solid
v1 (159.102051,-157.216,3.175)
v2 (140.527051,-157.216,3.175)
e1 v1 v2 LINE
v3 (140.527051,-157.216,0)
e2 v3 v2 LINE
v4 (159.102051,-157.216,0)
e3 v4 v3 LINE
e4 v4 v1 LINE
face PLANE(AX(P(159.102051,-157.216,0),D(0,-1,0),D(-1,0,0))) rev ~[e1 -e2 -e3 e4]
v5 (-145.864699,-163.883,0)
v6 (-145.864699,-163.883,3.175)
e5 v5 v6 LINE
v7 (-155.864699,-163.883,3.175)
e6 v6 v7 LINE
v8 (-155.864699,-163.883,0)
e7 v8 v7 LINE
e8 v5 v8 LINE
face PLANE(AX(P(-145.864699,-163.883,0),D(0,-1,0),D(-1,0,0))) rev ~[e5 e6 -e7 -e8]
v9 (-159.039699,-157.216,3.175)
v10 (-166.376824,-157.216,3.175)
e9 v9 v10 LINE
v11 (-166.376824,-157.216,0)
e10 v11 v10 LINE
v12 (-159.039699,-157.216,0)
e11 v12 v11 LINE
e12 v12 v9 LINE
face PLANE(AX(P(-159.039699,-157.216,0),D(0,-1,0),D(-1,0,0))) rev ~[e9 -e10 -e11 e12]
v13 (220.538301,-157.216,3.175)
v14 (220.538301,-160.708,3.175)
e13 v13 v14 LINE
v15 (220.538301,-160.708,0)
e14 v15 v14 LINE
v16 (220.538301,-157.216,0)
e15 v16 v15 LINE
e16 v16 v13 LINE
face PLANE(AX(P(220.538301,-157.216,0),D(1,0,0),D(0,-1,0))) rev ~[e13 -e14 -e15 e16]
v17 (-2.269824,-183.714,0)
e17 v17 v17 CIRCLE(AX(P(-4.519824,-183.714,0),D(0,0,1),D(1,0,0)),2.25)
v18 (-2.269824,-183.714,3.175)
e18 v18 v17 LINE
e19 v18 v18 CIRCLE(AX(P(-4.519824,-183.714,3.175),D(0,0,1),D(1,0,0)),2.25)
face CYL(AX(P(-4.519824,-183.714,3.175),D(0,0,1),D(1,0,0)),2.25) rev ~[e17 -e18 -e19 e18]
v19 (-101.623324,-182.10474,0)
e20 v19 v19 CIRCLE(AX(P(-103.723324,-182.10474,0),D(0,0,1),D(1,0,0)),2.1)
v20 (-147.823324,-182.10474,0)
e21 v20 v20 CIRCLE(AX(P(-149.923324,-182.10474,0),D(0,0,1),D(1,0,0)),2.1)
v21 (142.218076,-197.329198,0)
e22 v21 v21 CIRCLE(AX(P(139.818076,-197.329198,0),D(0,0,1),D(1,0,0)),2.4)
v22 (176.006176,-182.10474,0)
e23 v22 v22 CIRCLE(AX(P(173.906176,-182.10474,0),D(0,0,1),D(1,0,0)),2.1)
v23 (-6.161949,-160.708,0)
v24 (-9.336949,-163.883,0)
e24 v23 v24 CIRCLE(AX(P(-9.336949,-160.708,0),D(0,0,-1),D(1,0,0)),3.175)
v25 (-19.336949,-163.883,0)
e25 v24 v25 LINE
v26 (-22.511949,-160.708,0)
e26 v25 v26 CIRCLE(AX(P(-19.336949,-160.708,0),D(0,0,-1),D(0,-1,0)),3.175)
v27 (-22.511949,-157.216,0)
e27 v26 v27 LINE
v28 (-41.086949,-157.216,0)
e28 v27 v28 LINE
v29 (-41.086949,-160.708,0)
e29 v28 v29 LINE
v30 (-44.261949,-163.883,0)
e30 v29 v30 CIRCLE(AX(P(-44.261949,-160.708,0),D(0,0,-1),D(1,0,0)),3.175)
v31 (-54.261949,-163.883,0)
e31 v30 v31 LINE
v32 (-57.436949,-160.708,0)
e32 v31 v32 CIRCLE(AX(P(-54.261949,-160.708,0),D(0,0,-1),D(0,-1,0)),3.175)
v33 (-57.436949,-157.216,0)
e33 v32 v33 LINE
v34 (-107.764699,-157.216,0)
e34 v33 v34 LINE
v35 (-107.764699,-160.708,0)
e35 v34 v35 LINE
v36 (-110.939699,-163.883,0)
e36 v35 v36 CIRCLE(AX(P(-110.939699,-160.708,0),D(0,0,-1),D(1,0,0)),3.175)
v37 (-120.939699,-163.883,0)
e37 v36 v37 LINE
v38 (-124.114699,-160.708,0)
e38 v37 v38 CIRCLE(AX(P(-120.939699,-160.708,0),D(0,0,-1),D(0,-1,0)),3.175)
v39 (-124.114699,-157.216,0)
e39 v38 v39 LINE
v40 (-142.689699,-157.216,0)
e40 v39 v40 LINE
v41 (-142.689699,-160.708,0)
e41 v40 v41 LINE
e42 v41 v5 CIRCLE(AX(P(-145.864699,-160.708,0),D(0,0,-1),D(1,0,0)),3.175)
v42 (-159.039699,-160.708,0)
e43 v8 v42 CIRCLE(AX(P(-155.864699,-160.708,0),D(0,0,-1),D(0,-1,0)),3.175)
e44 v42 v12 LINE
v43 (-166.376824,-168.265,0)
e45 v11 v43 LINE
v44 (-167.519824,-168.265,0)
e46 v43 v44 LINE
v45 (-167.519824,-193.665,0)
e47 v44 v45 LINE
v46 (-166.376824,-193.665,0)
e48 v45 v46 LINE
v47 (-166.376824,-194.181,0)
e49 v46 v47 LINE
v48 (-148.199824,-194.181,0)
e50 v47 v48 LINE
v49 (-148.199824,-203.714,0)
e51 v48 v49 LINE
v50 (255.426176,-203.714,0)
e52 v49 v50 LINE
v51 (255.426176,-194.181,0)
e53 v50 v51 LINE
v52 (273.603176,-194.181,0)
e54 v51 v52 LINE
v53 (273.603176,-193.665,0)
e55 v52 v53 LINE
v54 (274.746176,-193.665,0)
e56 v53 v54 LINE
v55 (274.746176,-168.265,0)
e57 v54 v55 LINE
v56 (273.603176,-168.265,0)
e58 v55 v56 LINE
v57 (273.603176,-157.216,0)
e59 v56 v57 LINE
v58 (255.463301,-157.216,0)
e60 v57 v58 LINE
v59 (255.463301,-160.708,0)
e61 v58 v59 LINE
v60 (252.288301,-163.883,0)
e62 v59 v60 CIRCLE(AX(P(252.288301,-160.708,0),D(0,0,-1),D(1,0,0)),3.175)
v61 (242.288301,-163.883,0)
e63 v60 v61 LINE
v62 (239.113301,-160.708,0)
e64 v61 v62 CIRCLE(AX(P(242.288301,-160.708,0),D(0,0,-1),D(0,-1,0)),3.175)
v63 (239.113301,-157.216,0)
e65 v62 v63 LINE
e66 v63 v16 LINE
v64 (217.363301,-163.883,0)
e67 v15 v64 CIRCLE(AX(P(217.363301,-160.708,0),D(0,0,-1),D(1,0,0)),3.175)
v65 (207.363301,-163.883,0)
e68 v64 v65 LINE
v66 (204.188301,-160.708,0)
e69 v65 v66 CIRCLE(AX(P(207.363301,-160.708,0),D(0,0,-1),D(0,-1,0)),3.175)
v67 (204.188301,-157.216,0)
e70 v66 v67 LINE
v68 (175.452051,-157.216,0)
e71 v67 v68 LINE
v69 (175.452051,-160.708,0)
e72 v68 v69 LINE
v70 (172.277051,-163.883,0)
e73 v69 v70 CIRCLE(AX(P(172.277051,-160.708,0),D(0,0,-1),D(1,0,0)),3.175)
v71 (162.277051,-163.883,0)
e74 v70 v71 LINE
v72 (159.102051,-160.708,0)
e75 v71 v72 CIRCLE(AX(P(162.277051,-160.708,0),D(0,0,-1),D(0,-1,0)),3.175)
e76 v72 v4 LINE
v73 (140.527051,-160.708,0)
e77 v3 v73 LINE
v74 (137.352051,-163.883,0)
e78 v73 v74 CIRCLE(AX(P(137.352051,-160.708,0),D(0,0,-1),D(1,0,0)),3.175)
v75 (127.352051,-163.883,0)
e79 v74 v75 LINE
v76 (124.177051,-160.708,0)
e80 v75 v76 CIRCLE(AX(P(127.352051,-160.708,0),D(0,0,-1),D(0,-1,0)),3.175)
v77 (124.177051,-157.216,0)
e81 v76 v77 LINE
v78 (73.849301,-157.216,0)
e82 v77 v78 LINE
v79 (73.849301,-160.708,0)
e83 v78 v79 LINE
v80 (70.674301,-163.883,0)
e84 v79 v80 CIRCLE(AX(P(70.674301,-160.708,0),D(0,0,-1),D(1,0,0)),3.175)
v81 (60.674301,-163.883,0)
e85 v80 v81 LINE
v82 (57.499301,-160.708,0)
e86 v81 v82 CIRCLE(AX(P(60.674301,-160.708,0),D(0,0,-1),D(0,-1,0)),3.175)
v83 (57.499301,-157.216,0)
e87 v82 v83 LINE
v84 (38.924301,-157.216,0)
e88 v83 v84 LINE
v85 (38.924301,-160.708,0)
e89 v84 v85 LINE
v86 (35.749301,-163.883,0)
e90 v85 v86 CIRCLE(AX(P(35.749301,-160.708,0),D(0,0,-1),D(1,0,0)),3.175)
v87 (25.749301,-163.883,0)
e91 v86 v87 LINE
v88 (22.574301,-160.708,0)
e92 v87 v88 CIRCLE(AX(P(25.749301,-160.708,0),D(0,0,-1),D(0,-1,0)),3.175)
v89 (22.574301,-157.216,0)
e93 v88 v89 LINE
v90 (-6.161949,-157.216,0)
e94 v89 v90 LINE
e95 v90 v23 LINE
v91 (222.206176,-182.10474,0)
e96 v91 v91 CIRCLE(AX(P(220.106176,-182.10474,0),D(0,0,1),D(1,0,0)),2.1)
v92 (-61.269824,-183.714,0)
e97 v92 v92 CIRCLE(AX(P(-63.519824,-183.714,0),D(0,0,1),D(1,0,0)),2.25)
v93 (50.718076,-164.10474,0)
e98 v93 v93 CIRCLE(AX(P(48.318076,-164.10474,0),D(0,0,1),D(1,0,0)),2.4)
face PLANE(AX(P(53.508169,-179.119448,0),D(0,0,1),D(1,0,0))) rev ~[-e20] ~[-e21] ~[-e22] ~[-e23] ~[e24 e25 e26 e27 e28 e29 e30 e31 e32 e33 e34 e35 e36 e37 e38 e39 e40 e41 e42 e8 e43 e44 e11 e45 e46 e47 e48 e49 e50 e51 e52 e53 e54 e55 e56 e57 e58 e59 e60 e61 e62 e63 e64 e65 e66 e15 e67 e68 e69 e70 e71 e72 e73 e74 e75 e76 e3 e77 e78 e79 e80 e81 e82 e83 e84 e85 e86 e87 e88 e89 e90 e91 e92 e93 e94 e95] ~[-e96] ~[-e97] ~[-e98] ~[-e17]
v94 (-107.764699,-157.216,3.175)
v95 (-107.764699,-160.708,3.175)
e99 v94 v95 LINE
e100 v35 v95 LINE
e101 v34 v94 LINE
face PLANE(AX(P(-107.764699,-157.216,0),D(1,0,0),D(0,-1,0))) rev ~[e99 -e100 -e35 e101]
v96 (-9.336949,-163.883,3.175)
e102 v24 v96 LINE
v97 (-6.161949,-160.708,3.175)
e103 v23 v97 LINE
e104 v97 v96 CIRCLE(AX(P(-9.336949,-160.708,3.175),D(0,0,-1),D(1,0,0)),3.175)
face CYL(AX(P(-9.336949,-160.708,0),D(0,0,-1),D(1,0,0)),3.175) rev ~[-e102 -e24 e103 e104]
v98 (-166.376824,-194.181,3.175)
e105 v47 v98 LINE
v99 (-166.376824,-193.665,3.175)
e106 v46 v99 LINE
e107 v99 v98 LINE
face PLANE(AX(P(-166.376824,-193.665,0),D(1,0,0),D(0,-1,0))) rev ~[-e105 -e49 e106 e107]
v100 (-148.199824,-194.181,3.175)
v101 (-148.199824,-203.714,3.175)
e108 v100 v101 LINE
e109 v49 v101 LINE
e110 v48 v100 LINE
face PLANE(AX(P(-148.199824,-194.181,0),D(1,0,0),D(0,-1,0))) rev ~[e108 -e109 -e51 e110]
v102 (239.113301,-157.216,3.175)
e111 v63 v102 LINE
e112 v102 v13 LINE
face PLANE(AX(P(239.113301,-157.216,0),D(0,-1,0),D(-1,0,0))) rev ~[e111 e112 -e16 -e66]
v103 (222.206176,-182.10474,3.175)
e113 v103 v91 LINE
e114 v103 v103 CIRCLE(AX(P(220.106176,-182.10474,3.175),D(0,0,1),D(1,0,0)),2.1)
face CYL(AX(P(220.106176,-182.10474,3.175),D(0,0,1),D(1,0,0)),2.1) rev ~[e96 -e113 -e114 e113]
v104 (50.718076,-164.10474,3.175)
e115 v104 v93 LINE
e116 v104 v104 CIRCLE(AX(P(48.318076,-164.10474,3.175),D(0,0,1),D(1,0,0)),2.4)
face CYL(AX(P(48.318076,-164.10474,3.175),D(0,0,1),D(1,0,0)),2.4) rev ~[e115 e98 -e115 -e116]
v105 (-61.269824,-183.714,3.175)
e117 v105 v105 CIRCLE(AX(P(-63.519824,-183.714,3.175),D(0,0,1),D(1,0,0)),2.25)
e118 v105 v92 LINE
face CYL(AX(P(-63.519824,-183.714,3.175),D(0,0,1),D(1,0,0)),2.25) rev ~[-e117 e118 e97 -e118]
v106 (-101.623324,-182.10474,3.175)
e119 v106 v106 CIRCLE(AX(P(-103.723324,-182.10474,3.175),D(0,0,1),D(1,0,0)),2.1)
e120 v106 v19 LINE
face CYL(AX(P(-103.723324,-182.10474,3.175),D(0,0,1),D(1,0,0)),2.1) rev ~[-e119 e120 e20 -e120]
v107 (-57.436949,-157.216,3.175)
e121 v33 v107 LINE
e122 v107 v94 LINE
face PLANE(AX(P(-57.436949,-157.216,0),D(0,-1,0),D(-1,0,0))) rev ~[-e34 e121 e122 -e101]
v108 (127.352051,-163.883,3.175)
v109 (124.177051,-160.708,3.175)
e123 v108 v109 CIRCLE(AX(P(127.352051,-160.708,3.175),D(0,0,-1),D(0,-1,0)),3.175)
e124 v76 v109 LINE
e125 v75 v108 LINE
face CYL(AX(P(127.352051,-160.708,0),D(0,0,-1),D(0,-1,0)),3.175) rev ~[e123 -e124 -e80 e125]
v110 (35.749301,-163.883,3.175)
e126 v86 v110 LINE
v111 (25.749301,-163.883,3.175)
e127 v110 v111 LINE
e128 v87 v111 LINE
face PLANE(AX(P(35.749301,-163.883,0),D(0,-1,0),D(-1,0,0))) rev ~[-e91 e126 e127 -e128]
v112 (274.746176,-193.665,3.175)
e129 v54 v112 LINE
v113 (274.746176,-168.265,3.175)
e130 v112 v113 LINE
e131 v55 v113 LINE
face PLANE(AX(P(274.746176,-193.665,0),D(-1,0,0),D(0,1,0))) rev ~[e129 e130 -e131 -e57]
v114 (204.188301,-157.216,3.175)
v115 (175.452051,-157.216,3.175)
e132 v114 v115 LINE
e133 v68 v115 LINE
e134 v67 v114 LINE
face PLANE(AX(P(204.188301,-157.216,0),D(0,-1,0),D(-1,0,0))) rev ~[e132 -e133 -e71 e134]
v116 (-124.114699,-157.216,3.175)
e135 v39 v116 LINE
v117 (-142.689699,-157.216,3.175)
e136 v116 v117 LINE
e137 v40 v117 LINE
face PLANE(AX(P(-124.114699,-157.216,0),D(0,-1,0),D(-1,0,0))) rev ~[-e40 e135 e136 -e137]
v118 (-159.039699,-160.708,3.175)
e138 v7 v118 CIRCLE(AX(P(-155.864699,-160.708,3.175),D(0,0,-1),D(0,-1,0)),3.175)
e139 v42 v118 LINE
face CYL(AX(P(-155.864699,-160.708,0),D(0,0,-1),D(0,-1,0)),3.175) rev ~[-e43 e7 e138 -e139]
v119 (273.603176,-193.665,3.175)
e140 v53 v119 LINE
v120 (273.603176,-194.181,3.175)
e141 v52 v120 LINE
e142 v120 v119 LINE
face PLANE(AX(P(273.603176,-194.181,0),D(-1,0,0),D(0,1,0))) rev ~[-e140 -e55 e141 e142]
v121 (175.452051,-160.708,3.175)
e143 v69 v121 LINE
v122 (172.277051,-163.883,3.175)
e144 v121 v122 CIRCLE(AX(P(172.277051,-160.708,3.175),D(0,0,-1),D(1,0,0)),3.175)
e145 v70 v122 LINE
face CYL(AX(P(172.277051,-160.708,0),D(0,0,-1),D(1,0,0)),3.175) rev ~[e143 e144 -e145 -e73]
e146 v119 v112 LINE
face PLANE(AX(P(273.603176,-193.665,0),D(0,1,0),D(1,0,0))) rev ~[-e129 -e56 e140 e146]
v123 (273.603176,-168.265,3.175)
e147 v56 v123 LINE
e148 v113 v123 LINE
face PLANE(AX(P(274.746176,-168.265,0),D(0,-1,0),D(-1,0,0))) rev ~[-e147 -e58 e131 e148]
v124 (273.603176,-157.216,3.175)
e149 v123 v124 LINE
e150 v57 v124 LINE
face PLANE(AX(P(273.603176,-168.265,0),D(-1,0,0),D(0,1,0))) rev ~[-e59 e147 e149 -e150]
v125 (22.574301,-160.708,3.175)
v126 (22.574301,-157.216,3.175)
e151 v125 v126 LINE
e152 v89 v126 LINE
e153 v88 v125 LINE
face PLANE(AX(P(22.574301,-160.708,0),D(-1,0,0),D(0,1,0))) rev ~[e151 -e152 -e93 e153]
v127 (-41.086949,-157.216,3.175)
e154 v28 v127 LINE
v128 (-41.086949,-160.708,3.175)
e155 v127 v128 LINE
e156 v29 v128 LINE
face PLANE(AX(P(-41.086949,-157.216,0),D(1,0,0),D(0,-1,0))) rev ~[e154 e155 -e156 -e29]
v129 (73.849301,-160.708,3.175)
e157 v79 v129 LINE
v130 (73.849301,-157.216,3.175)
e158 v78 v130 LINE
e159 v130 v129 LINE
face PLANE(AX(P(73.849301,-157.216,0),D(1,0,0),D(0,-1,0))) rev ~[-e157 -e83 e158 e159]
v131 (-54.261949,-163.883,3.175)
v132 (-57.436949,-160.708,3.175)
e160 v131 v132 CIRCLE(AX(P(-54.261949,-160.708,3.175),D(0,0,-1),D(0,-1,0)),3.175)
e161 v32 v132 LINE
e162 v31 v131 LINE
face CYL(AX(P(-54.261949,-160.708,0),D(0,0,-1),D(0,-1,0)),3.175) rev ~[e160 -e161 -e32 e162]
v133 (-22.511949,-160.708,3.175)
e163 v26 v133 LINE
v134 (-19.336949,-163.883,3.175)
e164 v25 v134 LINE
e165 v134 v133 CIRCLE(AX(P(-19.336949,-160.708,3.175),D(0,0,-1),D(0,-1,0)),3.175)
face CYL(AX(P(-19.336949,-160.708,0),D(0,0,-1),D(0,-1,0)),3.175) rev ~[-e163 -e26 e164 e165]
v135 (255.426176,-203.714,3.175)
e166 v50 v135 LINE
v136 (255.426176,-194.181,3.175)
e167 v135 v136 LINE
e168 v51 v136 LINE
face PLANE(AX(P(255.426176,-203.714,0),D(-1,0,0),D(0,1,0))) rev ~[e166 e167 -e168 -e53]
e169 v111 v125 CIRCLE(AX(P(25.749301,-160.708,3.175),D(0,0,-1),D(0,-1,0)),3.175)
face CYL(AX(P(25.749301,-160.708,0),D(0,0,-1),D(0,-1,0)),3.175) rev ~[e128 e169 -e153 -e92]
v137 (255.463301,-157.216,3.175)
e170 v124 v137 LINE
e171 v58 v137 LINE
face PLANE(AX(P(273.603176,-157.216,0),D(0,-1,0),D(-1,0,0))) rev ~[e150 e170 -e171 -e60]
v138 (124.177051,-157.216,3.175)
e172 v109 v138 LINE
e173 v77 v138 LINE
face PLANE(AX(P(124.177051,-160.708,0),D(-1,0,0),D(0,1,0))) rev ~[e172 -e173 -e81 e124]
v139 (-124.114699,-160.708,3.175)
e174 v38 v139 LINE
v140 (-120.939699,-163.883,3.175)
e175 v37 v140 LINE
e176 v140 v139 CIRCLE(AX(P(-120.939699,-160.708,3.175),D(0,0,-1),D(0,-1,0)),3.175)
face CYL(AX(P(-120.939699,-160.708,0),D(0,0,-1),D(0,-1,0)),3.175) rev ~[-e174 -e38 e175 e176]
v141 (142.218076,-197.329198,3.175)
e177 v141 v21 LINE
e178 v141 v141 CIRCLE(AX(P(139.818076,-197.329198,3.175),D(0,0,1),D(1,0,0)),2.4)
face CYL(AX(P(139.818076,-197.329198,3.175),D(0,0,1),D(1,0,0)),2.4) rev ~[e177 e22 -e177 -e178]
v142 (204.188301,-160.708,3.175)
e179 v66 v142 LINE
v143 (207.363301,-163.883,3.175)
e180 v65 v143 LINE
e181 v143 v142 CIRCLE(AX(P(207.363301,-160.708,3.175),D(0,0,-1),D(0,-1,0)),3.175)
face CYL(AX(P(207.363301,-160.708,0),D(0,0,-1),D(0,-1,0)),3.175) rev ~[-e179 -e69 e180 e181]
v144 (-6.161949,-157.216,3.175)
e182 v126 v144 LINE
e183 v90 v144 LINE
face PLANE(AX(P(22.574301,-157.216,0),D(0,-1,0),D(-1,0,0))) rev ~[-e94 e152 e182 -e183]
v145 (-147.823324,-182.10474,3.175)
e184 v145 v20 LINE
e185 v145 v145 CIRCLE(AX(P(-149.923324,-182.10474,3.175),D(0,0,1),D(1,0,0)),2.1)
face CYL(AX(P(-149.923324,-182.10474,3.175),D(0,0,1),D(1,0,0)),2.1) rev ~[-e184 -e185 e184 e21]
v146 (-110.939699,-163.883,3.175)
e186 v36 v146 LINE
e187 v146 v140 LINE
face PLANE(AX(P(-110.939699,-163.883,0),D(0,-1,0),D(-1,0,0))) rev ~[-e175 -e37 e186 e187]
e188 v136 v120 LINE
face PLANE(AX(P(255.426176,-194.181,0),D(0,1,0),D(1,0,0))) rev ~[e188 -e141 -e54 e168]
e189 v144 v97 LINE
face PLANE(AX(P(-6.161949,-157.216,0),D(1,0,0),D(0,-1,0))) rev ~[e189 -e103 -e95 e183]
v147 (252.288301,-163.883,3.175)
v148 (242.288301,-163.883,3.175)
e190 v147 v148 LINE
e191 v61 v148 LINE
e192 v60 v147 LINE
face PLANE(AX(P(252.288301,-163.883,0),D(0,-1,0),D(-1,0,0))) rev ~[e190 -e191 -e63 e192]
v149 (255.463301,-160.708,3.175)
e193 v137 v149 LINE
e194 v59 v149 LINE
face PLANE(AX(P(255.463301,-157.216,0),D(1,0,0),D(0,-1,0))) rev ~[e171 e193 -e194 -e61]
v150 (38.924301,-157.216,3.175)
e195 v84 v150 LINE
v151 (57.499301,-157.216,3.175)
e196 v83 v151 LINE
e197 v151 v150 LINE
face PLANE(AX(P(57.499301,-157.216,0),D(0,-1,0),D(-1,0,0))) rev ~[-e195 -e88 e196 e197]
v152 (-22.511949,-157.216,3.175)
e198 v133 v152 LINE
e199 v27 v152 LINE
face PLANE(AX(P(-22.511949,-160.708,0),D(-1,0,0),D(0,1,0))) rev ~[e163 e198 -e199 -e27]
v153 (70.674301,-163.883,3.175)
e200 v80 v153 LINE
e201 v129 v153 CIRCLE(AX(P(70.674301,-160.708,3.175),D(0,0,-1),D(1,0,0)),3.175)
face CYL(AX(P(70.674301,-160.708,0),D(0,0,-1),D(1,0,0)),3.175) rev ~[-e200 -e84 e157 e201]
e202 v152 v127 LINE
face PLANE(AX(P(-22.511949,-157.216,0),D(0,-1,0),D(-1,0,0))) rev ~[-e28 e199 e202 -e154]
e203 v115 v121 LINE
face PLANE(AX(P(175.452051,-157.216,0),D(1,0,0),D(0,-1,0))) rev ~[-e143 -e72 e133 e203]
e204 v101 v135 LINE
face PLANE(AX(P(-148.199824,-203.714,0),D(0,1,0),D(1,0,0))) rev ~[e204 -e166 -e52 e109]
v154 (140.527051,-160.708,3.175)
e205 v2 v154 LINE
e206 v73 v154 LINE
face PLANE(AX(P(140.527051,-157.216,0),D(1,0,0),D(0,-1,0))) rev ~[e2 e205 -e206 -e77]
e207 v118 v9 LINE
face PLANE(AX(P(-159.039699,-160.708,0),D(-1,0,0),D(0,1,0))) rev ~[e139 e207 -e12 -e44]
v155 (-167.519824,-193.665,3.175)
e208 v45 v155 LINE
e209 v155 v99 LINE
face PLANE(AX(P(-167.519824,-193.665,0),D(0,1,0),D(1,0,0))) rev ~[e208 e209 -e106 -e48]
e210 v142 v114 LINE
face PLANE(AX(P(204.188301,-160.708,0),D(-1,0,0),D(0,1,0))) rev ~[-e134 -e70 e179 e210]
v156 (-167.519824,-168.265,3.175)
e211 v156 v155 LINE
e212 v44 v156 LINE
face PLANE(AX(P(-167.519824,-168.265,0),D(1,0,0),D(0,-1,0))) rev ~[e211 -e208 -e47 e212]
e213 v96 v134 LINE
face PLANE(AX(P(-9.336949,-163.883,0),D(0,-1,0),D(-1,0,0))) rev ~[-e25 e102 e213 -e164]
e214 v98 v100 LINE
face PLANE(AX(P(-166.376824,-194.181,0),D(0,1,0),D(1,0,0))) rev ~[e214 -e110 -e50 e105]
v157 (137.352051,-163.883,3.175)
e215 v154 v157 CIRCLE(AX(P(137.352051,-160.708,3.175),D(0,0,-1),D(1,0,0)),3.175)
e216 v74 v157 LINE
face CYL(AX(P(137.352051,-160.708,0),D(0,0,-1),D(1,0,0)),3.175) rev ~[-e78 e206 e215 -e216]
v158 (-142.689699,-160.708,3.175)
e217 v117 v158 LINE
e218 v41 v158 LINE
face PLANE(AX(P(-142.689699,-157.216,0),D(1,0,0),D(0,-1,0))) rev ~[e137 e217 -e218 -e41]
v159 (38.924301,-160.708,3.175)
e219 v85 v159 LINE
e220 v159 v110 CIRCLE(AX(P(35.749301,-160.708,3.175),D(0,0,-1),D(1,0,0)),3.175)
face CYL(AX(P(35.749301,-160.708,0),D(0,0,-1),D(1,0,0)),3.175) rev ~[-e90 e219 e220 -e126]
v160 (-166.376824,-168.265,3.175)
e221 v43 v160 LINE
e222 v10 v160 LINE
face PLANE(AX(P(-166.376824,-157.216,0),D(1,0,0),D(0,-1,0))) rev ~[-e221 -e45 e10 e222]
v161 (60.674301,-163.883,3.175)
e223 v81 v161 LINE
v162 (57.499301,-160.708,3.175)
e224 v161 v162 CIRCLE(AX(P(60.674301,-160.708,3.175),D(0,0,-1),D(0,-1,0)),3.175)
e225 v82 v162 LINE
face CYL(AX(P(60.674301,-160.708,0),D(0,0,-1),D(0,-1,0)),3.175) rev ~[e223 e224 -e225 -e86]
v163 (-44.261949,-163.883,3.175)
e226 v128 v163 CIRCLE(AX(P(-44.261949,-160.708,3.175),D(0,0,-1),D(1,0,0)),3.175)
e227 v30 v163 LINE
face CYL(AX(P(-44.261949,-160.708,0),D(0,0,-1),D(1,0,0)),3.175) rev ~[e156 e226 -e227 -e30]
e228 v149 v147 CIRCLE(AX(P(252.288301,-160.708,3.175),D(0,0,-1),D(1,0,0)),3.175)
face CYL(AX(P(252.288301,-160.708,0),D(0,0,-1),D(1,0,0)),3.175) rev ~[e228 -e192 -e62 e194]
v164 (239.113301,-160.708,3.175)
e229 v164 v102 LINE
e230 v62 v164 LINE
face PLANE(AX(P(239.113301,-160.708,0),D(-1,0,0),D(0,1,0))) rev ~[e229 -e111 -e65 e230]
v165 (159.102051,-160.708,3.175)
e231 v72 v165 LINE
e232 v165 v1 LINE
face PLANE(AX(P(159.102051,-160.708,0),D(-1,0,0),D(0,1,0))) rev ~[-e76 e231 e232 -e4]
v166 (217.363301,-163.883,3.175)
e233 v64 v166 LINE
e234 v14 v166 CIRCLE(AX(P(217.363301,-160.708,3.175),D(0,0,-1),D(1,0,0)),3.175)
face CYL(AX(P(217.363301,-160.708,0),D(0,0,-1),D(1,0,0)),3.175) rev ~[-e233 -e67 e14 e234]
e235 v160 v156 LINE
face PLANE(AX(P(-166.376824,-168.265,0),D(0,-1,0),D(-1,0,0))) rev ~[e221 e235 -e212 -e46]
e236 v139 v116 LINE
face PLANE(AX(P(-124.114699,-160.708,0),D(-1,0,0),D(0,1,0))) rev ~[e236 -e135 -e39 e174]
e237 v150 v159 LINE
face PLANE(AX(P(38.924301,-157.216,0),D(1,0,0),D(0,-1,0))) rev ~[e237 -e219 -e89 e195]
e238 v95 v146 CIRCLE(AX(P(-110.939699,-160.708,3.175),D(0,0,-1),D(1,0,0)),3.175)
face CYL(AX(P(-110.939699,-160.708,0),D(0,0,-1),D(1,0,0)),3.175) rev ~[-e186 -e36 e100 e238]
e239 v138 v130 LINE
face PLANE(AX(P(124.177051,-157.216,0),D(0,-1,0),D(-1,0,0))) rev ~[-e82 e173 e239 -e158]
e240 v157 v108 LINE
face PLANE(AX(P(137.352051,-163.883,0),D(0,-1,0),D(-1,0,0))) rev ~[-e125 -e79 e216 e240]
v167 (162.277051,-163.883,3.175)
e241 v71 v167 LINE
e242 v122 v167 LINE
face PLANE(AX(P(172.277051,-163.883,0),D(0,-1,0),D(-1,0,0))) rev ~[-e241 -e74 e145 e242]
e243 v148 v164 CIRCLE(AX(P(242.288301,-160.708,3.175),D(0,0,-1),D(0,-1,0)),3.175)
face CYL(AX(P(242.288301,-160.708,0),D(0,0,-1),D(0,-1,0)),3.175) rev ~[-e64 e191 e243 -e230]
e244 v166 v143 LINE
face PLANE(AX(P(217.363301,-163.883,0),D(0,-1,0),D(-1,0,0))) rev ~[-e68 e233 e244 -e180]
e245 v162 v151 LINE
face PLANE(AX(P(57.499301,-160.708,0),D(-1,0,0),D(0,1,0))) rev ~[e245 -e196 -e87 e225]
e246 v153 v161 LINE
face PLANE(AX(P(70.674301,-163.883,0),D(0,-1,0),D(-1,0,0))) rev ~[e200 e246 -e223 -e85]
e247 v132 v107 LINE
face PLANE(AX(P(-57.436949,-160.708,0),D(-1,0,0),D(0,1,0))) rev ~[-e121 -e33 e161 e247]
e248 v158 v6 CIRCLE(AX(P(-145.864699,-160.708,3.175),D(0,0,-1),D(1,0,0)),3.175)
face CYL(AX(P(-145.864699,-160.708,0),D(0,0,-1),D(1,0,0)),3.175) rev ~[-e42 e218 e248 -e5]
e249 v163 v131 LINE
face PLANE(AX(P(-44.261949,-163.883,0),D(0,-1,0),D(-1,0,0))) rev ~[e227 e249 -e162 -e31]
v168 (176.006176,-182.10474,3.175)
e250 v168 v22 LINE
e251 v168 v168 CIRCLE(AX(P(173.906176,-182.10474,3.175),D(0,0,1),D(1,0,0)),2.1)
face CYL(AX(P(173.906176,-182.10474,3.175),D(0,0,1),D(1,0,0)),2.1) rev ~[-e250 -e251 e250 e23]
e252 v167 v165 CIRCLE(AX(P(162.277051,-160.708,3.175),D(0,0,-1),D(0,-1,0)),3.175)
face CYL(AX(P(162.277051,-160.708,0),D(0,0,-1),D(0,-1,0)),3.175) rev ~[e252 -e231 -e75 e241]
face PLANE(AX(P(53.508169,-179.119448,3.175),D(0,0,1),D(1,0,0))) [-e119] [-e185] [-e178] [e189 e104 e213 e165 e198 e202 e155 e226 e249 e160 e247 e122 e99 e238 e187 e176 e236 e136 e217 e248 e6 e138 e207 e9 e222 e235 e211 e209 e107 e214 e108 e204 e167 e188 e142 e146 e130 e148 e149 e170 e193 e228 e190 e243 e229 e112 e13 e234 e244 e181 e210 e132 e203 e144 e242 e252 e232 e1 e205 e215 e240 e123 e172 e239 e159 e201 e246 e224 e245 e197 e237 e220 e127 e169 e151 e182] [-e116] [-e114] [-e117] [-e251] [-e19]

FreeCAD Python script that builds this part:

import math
import FreeCAD as App
import Part
import Sketcher
Q = App.Units.Quantity

doc = App.newDocument("Part")
body = doc.addObject("PartDesign::Body", "Body")

# Sketch on XY plane
sketch1 = body.newObject("Sketcher::SketchObject", "Sketch")
sketch1.AttachmentSupport = (doc.getObject("XY_Plane"), [""])
sketch1.MapMode = "FlatFace"
sketch1.addGeometry([
    Part.LineSegment(App.Vector(-166.376824, -157.216, 0), App.Vector(-166.376824, -168.265, 0)),  # 0
    Part.LineSegment(App.Vector(-166.376824, -168.265, 0), App.Vector(-167.519824, -168.265, 0)),  # 1
    Part.LineSegment(App.Vector(-167.519824, -168.265, 0), App.Vector(-167.519824, -193.665, 0)),  # 2
    Part.LineSegment(App.Vector(-167.519824, -193.665, 0), App.Vector(-166.376824, -193.665, 0)),  # 3
    Part.LineSegment(App.Vector(-166.376824, -193.665, 0), App.Vector(-166.376824, -194.181, 0)),  # 4
    Part.LineSegment(App.Vector(-166.376824, -194.181, 0), App.Vector(-148.199824, -194.181, 0)),  # 5
    Part.LineSegment(App.Vector(-148.199824, -194.181, 0), App.Vector(-148.199824, -203.714, 0)),  # 6
    Part.LineSegment(App.Vector(-148.199824, -203.714, 0), App.Vector(255.426176, -203.714, 0)),  # 7
    Part.LineSegment(App.Vector(255.426176, -203.714, 0), App.Vector(255.426176, -194.181, 0)),  # 8
    Part.LineSegment(App.Vector(255.426176, -194.181, 0), App.Vector(273.603176, -194.181, 0)),  # 9
    Part.LineSegment(App.Vector(273.603176, -194.181, 0), App.Vector(273.603176, -193.665, 0)),  # 10
    Part.LineSegment(App.Vector(273.603176, -193.665, 0), App.Vector(274.746176, -193.665, 0)),  # 11
    Part.LineSegment(App.Vector(274.746176, -193.665, 0), App.Vector(274.746176, -168.265, 0)),  # 12
    Part.LineSegment(App.Vector(274.746176, -168.265, 0), App.Vector(273.603176, -168.265, 0)),  # 13
    Part.LineSegment(App.Vector(273.603176, -168.265, 0), App.Vector(273.603176, -157.216, 0)),  # 14
    Part.LineSegment(App.Vector(273.603176, -157.216, 0), App.Vector(255.463301, -157.216, 0)),  # 15
    Part.LineSegment(App.Vector(255.463301, -157.216, 0), App.Vector(255.463301, -160.708, 0)),  # 16
    Part.ArcOfCircle(Part.Circle(App.Vector(252.288301, -160.708, 0), App.Vector(0, 0, 1), 3.175), math.radians(-90), math.radians(0)),  # 17
    Part.LineSegment(App.Vector(252.288301, -163.883, 0), App.Vector(242.288301, -163.883, 0)),  # 18
    Part.ArcOfCircle(Part.Circle(App.Vector(242.288301, -160.708, 0), App.Vector(0, 0, 1), 3.175), math.radians(180), math.radians(270)),  # 19
    Part.LineSegment(App.Vector(239.113301, -160.708, 0), App.Vector(239.113301, -157.216, 0)),  # 20
    Part.LineSegment(App.Vector(239.113301, -157.216, 0), App.Vector(220.538301, -157.216, 0)),  # 21
    Part.LineSegment(App.Vector(220.538301, -157.216, 0), App.Vector(220.538301, -160.708, 0)),  # 22
    Part.ArcOfCircle(Part.Circle(App.Vector(217.363301, -160.708, 0), App.Vector(0, 0, 1), 3.175), math.radians(-90), math.radians(0)),  # 23
    Part.LineSegment(App.Vector(217.363301, -163.883, 0), App.Vector(207.363301, -163.883, 0)),  # 24
    Part.ArcOfCircle(Part.Circle(App.Vector(207.363301, -160.708, 0), App.Vector(0, 0, 1), 3.175), math.radians(180), math.radians(270)),  # 25
    Part.LineSegment(App.Vector(204.188301, -160.708, 0), App.Vector(204.188301, -157.216, 0)),  # 26
    Part.LineSegment(App.Vector(204.188301, -157.216, 0), App.Vector(175.452051, -157.216, 0)),  # 27
    Part.LineSegment(App.Vector(175.452051, -157.216, 0), App.Vector(175.452051, -160.708, 0)),  # 28
    Part.ArcOfCircle(Part.Circle(App.Vector(172.277051, -160.708, 0), App.Vector(0, 0, 1), 3.175), math.radians(-90), math.radians(0)),  # 29
    Part.LineSegment(App.Vector(172.277051, -163.883, 0), App.Vector(162.277051, -163.883, 0)),  # 30
    Part.ArcOfCircle(Part.Circle(App.Vector(162.277051, -160.708, 0), App.Vector(0, 0, 1), 3.175), math.radians(180), math.radians(270)),  # 31
    Part.LineSegment(App.Vector(159.102051, -160.708, 0), App.Vector(159.102051, -157.216, 0)),  # 32
    Part.LineSegment(App.Vector(159.102051, -157.216, 0), App.Vector(140.527051, -157.216, 0)),  # 33
    Part.LineSegment(App.Vector(140.527051, -157.216, 0), App.Vector(140.527051, -160.708, 0)),  # 34
    Part.ArcOfCircle(Part.Circle(App.Vector(137.352051, -160.708, 0), App.Vector(0, 0, 1), 3.175), math.radians(-90), math.radians(0)),  # 35
    Part.LineSegment(App.Vector(137.352051, -163.883, 0), App.Vector(127.352051, -163.883, 0)),  # 36
    Part.ArcOfCircle(Part.Circle(App.Vector(127.352051, -160.708, 0), App.Vector(0, 0, 1), 3.175), math.radians(180), math.radians(270)),  # 37
    Part.LineSegment(App.Vector(124.177051, -160.708, 0), App.Vector(124.177051, -157.216, 0)),  # 38
    Part.LineSegment(App.Vector(124.177051, -157.216, 0), App.Vector(73.849301, -157.216, 0)),  # 39
    Part.LineSegment(App.Vector(73.849301, -157.216, 0), App.Vector(73.849301, -160.708, 0)),  # 40
    Part.ArcOfCircle(Part.Circle(App.Vector(70.674301, -160.708, 0), App.Vector(0, 0, 1), 3.175), math.radians(-90), math.radians(0)),  # 41
    Part.LineSegment(App.Vector(70.674301, -163.883, 0), App.Vector(60.674301, -163.883, 0)),  # 42
    Part.ArcOfCircle(Part.Circle(App.Vector(60.674301, -160.708, 0), App.Vector(0, 0, 1), 3.175), math.radians(180), math.radians(270)),  # 43
    Part.LineSegment(App.Vector(57.499301, -160.708, 0), App.Vector(57.499301, -157.216, 0)),  # 44
    Part.LineSegment(App.Vector(57.499301, -157.216, 0), App.Vector(38.924301, -157.216, 0)),  # 45
    Part.LineSegment(App.Vector(38.924301, -157.216, 0), App.Vector(38.924301, -160.708, 0)),  # 46
    Part.ArcOfCircle(Part.Circle(App.Vector(35.749301, -160.708, 0), App.Vector(0, 0, 1), 3.175), math.radians(-90), math.radians(0)),  # 47
    Part.LineSegment(App.Vector(35.749301, -163.883, 0), App.Vector(25.749301, -163.883, 0)),  # 48
    Part.ArcOfCircle(Part.Circle(App.Vector(25.749301, -160.708, 0), App.Vector(0, 0, 1), 3.175), math.radians(180), math.radians(270)),  # 49
    Part.LineSegment(App.Vector(22.574301, -160.708, 0), App.Vector(22.574301, -157.216, 0)),  # 50
    Part.LineSegment(App.Vector(22.574301, -157.216, 0), App.Vector(-6.161949, -157.216, 0)),  # 51
    Part.LineSegment(App.Vector(-6.161949, -157.216, 0), App.Vector(-6.161949, -160.708, 0)),  # 52
    Part.ArcOfCircle(Part.Circle(App.Vector(-9.336949, -160.708, 0), App.Vector(0, 0, 1), 3.175), math.radians(-90), math.radians(0)),  # 53
    Part.LineSegment(App.Vector(-9.336949, -163.883, 0), App.Vector(-19.336949, -163.883, 0)),  # 54
    Part.ArcOfCircle(Part.Circle(App.Vector(-19.336949, -160.708, 0), App.Vector(0, 0, 1), 3.175), math.radians(180), math.radians(270)),  # 55
    Part.LineSegment(App.Vector(-22.511949, -160.708, 0), App.Vector(-22.511949, -157.216, 0)),  # 56
    Part.LineSegment(App.Vector(-22.511949, -157.216, 0), App.Vector(-41.086949, -157.216, 0)),  # 57
    Part.LineSegment(App.Vector(-41.086949, -157.216, 0), App.Vector(-41.086949, -160.708, 0)),  # 58
    Part.ArcOfCircle(Part.Circle(App.Vector(-44.261949, -160.708, 0), App.Vector(0, 0, 1), 3.175), math.radians(-90), math.radians(0)),  # 59
    Part.LineSegment(App.Vector(-44.261949, -163.883, 0), App.Vector(-54.261949, -163.883, 0)),  # 60
    Part.ArcOfCircle(Part.Circle(App.Vector(-54.261949, -160.708, 0), App.Vector(0, 0, 1), 3.175), math.radians(180), math.radians(270)),  # 61
    Part.LineSegment(App.Vector(-57.436949, -160.708, 0), App.Vector(-57.436949, -157.216, 0)),  # 62
    Part.LineSegment(App.Vector(-57.436949, -157.216, 0), App.Vector(-107.764699, -157.216, 0)),  # 63
    Part.LineSegment(App.Vector(-107.764699, -157.216, 0), App.Vector(-107.764699, -160.708, 0)),  # 64
    Part.ArcOfCircle(Part.Circle(App.Vector(-110.939699, -160.708, 0), App.Vector(0, 0, 1), 3.175), math.radians(-90), math.radians(0)),  # 65
    Part.LineSegment(App.Vector(-110.939699, -163.883, 0), App.Vector(-120.939699, -163.883, 0)),  # 66
    Part.ArcOfCircle(Part.Circle(App.Vector(-120.939699, -160.708, 0), App.Vector(0, 0, 1), 3.175), math.radians(180), math.radians(270)),  # 67
    Part.LineSegment(App.Vector(-124.114699, -160.708, 0), App.Vector(-124.114699, -157.216, 0)),  # 68
    Part.LineSegment(App.Vector(-124.114699, -157.216, 0), App.Vector(-142.689699, -157.216, 0)),  # 69
    Part.LineSegment(App.Vector(-142.689699, -157.216, 0), App.Vector(-142.689699, -160.708, 0)),  # 70
    Part.ArcOfCircle(Part.Circle(App.Vector(-145.864699, -160.708, 0), App.Vector(0, 0, 1), 3.175), math.radians(-90), math.radians(0)),  # 71
    Part.LineSegment(App.Vector(-145.864699, -163.883, 0), App.Vector(-155.864699, -163.883, 0)),  # 72
    Part.ArcOfCircle(Part.Circle(App.Vector(-155.864699, -160.708, 0), App.Vector(0, 0, 1), 3.175), math.radians(180), math.radians(270)),  # 73
    Part.LineSegment(App.Vector(-159.039699, -160.708, 0), App.Vector(-159.039699, -157.216, 0)),  # 74
    Part.LineSegment(App.Vector(-159.039699, -157.216, 0), App.Vector(-166.376824, -157.216, 0)),  # 75
], False)
sketch1.addConstraint([
    Sketcher.Constraint("Coincident", 0, 2, 1, 1),
    Sketcher.Constraint("Coincident", 1, 2, 2, 1),
    Sketcher.Constraint("Coincident", 2, 2, 3, 1),
    Sketcher.Constraint("Coincident", 3, 2, 4, 1),
    Sketcher.Constraint("Coincident", 4, 2, 5, 1),
    Sketcher.Constraint("Coincident", 5, 2, 6, 1),
    Sketcher.Constraint("Coincident", 6, 2, 7, 1),
    Sketcher.Constraint("Coincident", 7, 2, 8, 1),
    Sketcher.Constraint("Coincident", 8, 2, 9, 1),
    Sketcher.Constraint("Coincident", 9, 2, 10, 1),
    Sketcher.Constraint("Coincident", 10, 2, 11, 1),
    Sketcher.Constraint("Coincident", 11, 2, 12, 1),
    Sketcher.Constraint("Coincident", 12, 2, 13, 1),
    Sketcher.Constraint("Coincident", 13, 2, 14, 1),
    Sketcher.Constraint("Coincident", 14, 2, 15, 1),
    Sketcher.Constraint("Coincident", 15, 2, 16, 1),
    Sketcher.Constraint("Tangent", 16, 2, 17, 2),
    Sketcher.Constraint("Tangent", 17, 1, 18, 1),
    Sketcher.Constraint("Tangent", 18, 2, 19, 2),
    Sketcher.Constraint("Tangent", 19, 1, 20, 1),
    Sketcher.Constraint("Coincident", 20, 2, 21, 1),
    Sketcher.Constraint("Coincident", 21, 2, 22, 1),
    Sketcher.Constraint("Tangent", 22, 2, 23, 2),
    Sketcher.Constraint("Tangent", 23, 1, 24, 1),
    Sketcher.Constraint("Tangent", 24, 2, 25, 2),
    Sketcher.Constraint("Tangent", 25, 1, 26, 1),
    Sketcher.Constraint("Coincident", 26, 2, 27, 1),
    Sketcher.Constraint("Coincident", 27, 2, 28, 1),
    Sketcher.Constraint("Tangent", 28, 2, 29, 2),
    Sketcher.Constraint("Tangent", 29, 1, 30, 1),
    Sketcher.Constraint("Tangent", 30, 2, 31, 2),
    Sketcher.Constraint("Tangent", 31, 1, 32, 1),
    Sketcher.Constraint("Coincident", 32, 2, 33, 1),
    Sketcher.Constraint("Coincident", 33, 2, 34, 1),
    Sketcher.Constraint("Tangent", 34, 2, 35, 2),
    Sketcher.Constraint("Tangent", 35, 1, 36, 1),
    Sketcher.Constraint("Tangent", 36, 2, 37, 2),
    Sketcher.Constraint("Tangent", 37, 1, 38, 1),
    Sketcher.Constraint("Coincident", 38, 2, 39, 1),
    Sketcher.Constraint("Coincident", 39, 2, 40, 1),
    Sketcher.Constraint("Tangent", 40, 2, 41, 2),
    Sketcher.Constraint("Tangent", 41, 1, 42, 1),
    Sketcher.Constraint("Tangent", 42, 2, 43, 2),
    Sketcher.Constraint("Tangent", 43, 1, 44, 1),
    Sketcher.Constraint("Coincident", 44, 2, 45, 1),
    Sketcher.Constraint("Coincident", 45, 2, 46, 1),
    Sketcher.Constraint("Tangent", 46, 2, 47, 2),
    Sketcher.Constraint("Tangent", 47, 1, 48, 1),
    Sketcher.Constraint("Tangent", 48, 2, 49, 2),
    Sketcher.Constraint("Tangent", 49, 1, 50, 1),
    Sketcher.Constraint("Coincident", 50, 2, 51, 1),
    Sketcher.Constraint("Coincident", 51, 2, 52, 1),
    Sketcher.Constraint("Tangent", 52, 2, 53, 2),
    Sketcher.Constraint("Tangent", 53, 1, 54, 1),
    Sketcher.Constraint("Tangent", 54, 2, 55, 2),
    Sketcher.Constraint("Tangent", 55, 1, 56, 1),
    Sketcher.Constraint("Coincident", 56, 2, 57, 1),
    Sketcher.Constraint("Coincident", 57, 2, 58, 1),
    Sketcher.Constraint("Tangent", 58, 2, 59, 2),
    Sketcher.Constraint("Tangent", 59, 1, 60, 1),
    Sketcher.Constraint("Tangent", 60, 2, 61, 2),
    Sketcher.Constraint("Tangent", 61, 1, 62, 1),
    Sketcher.Constraint("Coincident", 62, 2, 63, 1),
    Sketcher.Constraint("Coincident", 63, 2, 64, 1),
    Sketcher.Constraint("Tangent", 64, 2, 65, 2),
    Sketcher.Constraint("Tangent", 65, 1, 66, 1),
    Sketcher.Constraint("Tangent", 66, 2, 67, 2),
    Sketcher.Constraint("Tangent", 67, 1, 68, 1),
    Sketcher.Constraint("Coincident", 68, 2, 69, 1),
    Sketcher.Constraint("Coincident", 69, 2, 70, 1),
    Sketcher.Constraint("Tangent", 70, 2, 71, 2),
    Sketcher.Constraint("Tangent", 71, 1, 72, 1),
    Sketcher.Constraint("Tangent", 72, 2, 73, 2),
    Sketcher.Constraint("Tangent", 73, 1, 74, 1),
    Sketcher.Constraint("Coincident", 74, 2, 75, 1),
    Sketcher.Constraint("Coincident", 75, 2, 0, 1),
    Sketcher.Constraint("Vertical", 0),
    Sketcher.Constraint("Horizontal", 1),
    Sketcher.Constraint("Vertical", 2),
    Sketcher.Constraint("Horizontal", 3),
    Sketcher.Constraint("Vertical", 4),
    Sketcher.Constraint("Horizontal", 5),
    Sketcher.Constraint("Vertical", 6),
    Sketcher.Constraint("Horizontal", 7),
    Sketcher.Constraint("Vertical", 8),
    Sketcher.Constraint("Horizontal", 9),
    Sketcher.Constraint("Vertical", 10),
    Sketcher.Constraint("Horizontal", 11),
    Sketcher.Constraint("Vertical", 12),
    Sketcher.Constraint("Horizontal", 13),
    Sketcher.Constraint("Vertical", 14),
    Sketcher.Constraint("Horizontal", 15),
    Sketcher.Constraint("Vertical", 16),
    Sketcher.Constraint("Horizontal", 18),
    Sketcher.Constraint("Vertical", 20),
    Sketcher.Constraint("Horizontal", 21),
    Sketcher.Constraint("Vertical", 22),
    Sketcher.Constraint("Horizontal", 24),
    Sketcher.Constraint("Vertical", 26),
    Sketcher.Constraint("Horizontal", 27),
    Sketcher.Constraint("Vertical", 28),
    Sketcher.Constraint("Horizontal", 30),
    Sketcher.Constraint("Vertical", 32),
    Sketcher.Constraint("Horizontal", 33),
    Sketcher.Constraint("Vertical", 34),
    Sketcher.Constraint("Horizontal", 36),
    Sketcher.Constraint("Vertical", 38),
    Sketcher.Constraint("Horizontal", 39),
    Sketcher.Constraint("Vertical", 40),
    Sketcher.Constraint("Horizontal", 42),
    Sketcher.Constraint("Vertical", 44),
    Sketcher.Constraint("Horizontal", 45),
    Sketcher.Constraint("Vertical", 46),
    Sketcher.Constraint("Horizontal", 48),
    Sketcher.Constraint("Vertical", 50),
    Sketcher.Constraint("Horizontal", 51),
    Sketcher.Constraint("Vertical", 52),
    Sketcher.Constraint("Horizontal", 54),
    Sketcher.Constraint("Vertical", 56),
    Sketcher.Constraint("Horizontal", 57),
    Sketcher.Constraint("Vertical", 58),
    Sketcher.Constraint("Horizontal", 60),
    Sketcher.Constraint("Vertical", 62),
    Sketcher.Constraint("Horizontal", 63),
    Sketcher.Constraint("Vertical", 64),
    Sketcher.Constraint("Horizontal", 66),
    Sketcher.Constraint("Vertical", 68),
    Sketcher.Constraint("Horizontal", 69),
    Sketcher.Constraint("Vertical", 70),
    Sketcher.Constraint("Horizontal", 72),
    Sketcher.Constraint("Vertical", 74),
    Sketcher.Constraint("Horizontal", 75),
    Sketcher.Constraint("Equal", 17, 19),
    Sketcher.Constraint("Equal", 19, 23),
    Sketcher.Constraint("Equal", 23, 25),
    Sketcher.Constraint("Equal", 25, 29),
    Sketcher.Constraint("Equal", 29, 31),
    Sketcher.Constraint("Equal", 31, 35),
    Sketcher.Constraint("Equal", 35, 37),
    Sketcher.Constraint("Equal", 37, 41),
    Sketcher.Constraint("Equal", 41, 43),
    Sketcher.Constraint("Equal", 43, 47),
    Sketcher.Constraint("Equal", 47, 49),
    Sketcher.Constraint("Equal", 49, 53),
    Sketcher.Constraint("Equal", 53, 55),
    Sketcher.Constraint("Equal", 55, 59),
    Sketcher.Constraint("Equal", 59, 61),
    Sketcher.Constraint("Equal", 61, 65),
    Sketcher.Constraint("Equal", 65, 67),
    Sketcher.Constraint("Equal", 67, 71),
    Sketcher.Constraint("Equal", 71, 73),
    Sketcher.Constraint("Horizontal", 19, 3, 23, 3),
    Sketcher.Constraint("Horizontal", 25, 3, 29, 3),
    Sketcher.Constraint("Horizontal", 31, 3, 35, 3),
    Sketcher.Constraint("Horizontal", 37, 3, 41, 3),
    Sketcher.Constraint("Horizontal", 43, 3, 47, 3),
    Sketcher.Constraint("Horizontal", 49, 3, 53, 3),
    Sketcher.Constraint("Horizontal", 55, 3, 59, 3),
    Sketcher.Constraint("Horizontal", 61, 3, 65, 3),
    Sketcher.Constraint("Horizontal", 67, 3, 71, 3),
    Sketcher.Constraint("Horizontal", 5, 2, 8, 2),
    Sketcher.Constraint("Horizontal", 3, 2, 10, 2),
    Sketcher.Constraint("Horizontal", 1, 2, 12, 2),
    Sketcher.Constraint("Horizontal", 15, 2, 20, 2),
    Sketcher.Constraint("Horizontal", 21, 2, 26, 2),
    Sketcher.Constraint("Horizontal", 27, 2, 32, 2),
    Sketcher.Constraint("Horizontal", 33, 2, 38, 2),
    Sketcher.Constraint("Horizontal", 39, 2, 44, 2),
    Sketcher.Constraint("Horizontal", 45, 2, 50, 2),
    Sketcher.Constraint("Horizontal", 51, 2, 56, 2),
    Sketcher.Constraint("Horizontal", 57, 2, 62, 2),
    Sketcher.Constraint("Horizontal", 63, 2, 68, 2),
    Sketcher.Constraint("Horizontal", 69, 2, 74, 2),
    Sketcher.Constraint("Vertical", 0, 2, 3, 2),
    Sketcher.Constraint("Vertical", 10, 2, 13, 2),
    Sketcher.Constraint("Equal", 5, 9),
    Sketcher.Constraint("Equal", 3, 11),
    Sketcher.Constraint("Equal", 18, 24),
    Sketcher.Constraint("Equal", 24, 30),
    Sketcher.Constraint("Equal", 21, 33),
    Sketcher.Constraint("Equal", 30, 36),
    Sketcher.Constraint("Equal", 36, 42),
    Sketcher.Constraint("Equal", 33, 45),
    Sketcher.Constraint("Equal", 42, 48),
    Sketcher.Constraint("Equal", 27, 51),
    Sketcher.Constraint("Equal", 48, 54),
    Sketcher.Constraint("Equal", 45, 57),
    Sketcher.Constraint("Equal", 54, 60),
    Sketcher.Constraint("Equal", 39, 63),
    Sketcher.Constraint("Equal", 60, 66),
    Sketcher.Constraint("Equal", 57, 69),
    Sketcher.Constraint("Equal", 66, 72),
    Sketcher.Constraint("DistanceY", 2, 2, 2, 1, Q("1 in")),
    Sketcher.Constraint("Radius", 17, Q("0.125 in")),
    Sketcher.Constraint("DistanceX", 1, 2, 1, 1, Q("0.045 in")),
    Sketcher.Constraint("DistanceY", 0, 2, 0, 1, Q("0.435 in")),
    Sketcher.Constraint("DistanceX", 5, 1, 5, 2, 18.177),
    Sketcher.Constraint("DistanceX", 7, 1, 7, 2, 403.626),
    Sketcher.Constraint("DistanceX", 18, 2, 18, 1, 10.0),
    Sketcher.Constraint("DistanceX", 21, 2, 21, 1, 18.575),
    Sketcher.Constraint("DistanceY", 4, 2, 4, 1, 0.516),
    Sketcher.Constraint("DistanceY", 6, 2, 6, 1, 9.533),
    Sketcher.Constraint("DistanceY", 16, 2, 16, 1, 3.492),
    Sketcher.Constraint("DistanceX", 27, 2, 27, 1, 28.73625),
    Sketcher.Constraint("DistanceX", 39, 2, 39, 1, 50.32775),
    Sketcher.Constraint("DistanceX", -1, 1, 17, 3, 252.288301),
    Sketcher.Constraint("DistanceY", 17, 3, -1, 1, 160.708),
    Sketcher.Constraint("DistanceX", 15, 2, 15, 1, 18.139875),
])
pad1 = body.newObject("PartDesign::Pad", "Pad")
pad1.Profile = sketch1
pad1.Length = Q("0.125 in")

# Sketch on XY plane
sketch2 = body.newObject("Sketcher::SketchObject", "Sketch001")
sketch2.AttachmentSupport = (doc.getObject("XY_Plane"), [""])
sketch2.MapMode = "FlatFace"
sketch2.AttachmentOffset = App.Placement(App.Vector(0, 0, 0.125 * 25.4), App.Rotation())
sketch2.addGeometry([
    Part.Circle(App.Vector(220.106176, -182.10474, 0), App.Vector(0, 0, 1), 2.1),  # 0
    Part.Circle(App.Vector(173.906176, -182.10474, 0), App.Vector(0, 0, 1), 2.1),  # 1
    Part.Circle(App.Vector(-4.519824, -183.714, 0), App.Vector(0, 0, 1), 2.25),  # 2
    Part.Circle(App.Vector(-63.519824, -183.714, 0), App.Vector(0, 0, 1), 2.25),  # 3
    Part.Circle(App.Vector(-103.723324, -182.10474, 0), App.Vector(0, 0, 1), 2.1),  # 4
    Part.Circle(App.Vector(-149.923324, -182.10474, 0), App.Vector(0, 0, 1), 2.1),  # 5
    Part.Circle(App.Vector(48.318076, -164.10474, 0), App.Vector(0, 0, 1), 2.4),  # 6
    Part.Circle(App.Vector(139.818076, -197.329198, 0), App.Vector(0, 0, 1), 2.4),  # 7
], False)
sketch2.addConstraint([
    Sketcher.Constraint("Equal", 0, 1),
    Sketcher.Constraint("Equal", 2, 3),
    Sketcher.Constraint("Equal", 1, 4),
    Sketcher.Constraint("Equal", 4, 5),
    Sketcher.Constraint("Equal", 6, 7),
    Sketcher.Constraint("Horizontal", 0, 3, 1, 3),
    Sketcher.Constraint("Horizontal", 2, 3, 3, 3),
    Sketcher.Constraint("Horizontal", 1, 3, 4, 3),
    Sketcher.Constraint("Horizontal", 4, 3, 5, 3),
    Sketcher.Constraint("Diameter", 0, 4.2),
    Sketcher.Constraint("Diameter", 2, 4.5),
    Sketcher.Constraint("Diameter", 6, 4.8),
    Sketcher.Constraint("DistanceX", -1, 1, 1, 3, Q("6.8466999 in")),
    Sketcher.Constraint("DistanceY", 2, 3, -1, 1, 183.714),
    Sketcher.Constraint("DistanceX", 1, 3, 0, 3, 46.2),
    Sketcher.Constraint("DistanceX", 2, 3, 1, 3, 178.426),
    Sketcher.Constraint("DistanceX", 3, 3, 2, 3, 59.0),
    Sketcher.Constraint("DistanceX", 4, 3, 3, 3, 40.2035),
    Sketcher.Constraint("DistanceX", 5, 3, 4, 3, 46.2),
    Sketcher.Constraint("DistanceX", 2, 3, 6, 3, 52.8379),
    Sketcher.Constraint("DistanceY", 1, 3, 6, 3, 18.0),
    Sketcher.Constraint("DistanceX", 7, 3, 1, 3, 34.0881),
    Sketcher.Constraint("DistanceY", 0, 3, -1, 1, 182.10474),
    Sketcher.Constraint("DistanceY", 7, 3, -1, 1, 197.329198),
])
pocket1 = body.newObject("PartDesign::Pocket", "Pocket")
pocket1.Profile = sketch2
pocket1.Type = "ThroughAll"

doc.recompute()
